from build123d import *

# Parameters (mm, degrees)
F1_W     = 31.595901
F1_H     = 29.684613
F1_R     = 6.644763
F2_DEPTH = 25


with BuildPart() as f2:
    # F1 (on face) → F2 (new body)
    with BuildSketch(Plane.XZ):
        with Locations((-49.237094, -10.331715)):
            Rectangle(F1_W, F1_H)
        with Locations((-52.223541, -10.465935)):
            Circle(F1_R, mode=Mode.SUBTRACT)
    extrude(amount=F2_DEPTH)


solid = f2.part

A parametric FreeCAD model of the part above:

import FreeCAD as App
import Part
import Sketcher

V = App.Vector

doc = App.newDocument("Part")
body = doc.addObject("PartDesign::Body", "Body")

# Sketch on XZ plane
sketch1 = doc.addObject("Sketcher::SketchObject", "Sketch")
body.addObject(sketch1)
sketch1.AttachmentSupport = (doc.XZ_Plane, [""])
sketch1.MapMode = "FlatFace"
sketch1.addGeometry(Part.LineSegment(V(-65.035044, 4.510592, 0), V(-65.035044, -25.174021, 0)), False)
sketch1.addGeometry(Part.LineSegment(V(-65.035044, -25.174021, 0), V(-33.439144, -25.174021, 0)), False)
sketch1.addGeometry(Part.LineSegment(V(-33.439144, -25.174021, 0), V(-33.439144, 4.510592, 0)), False)
sketch1.addGeometry(Part.LineSegment(V(-33.439144, 4.510592, 0), V(-65.035044, 4.510592, 0)), False)
sketch1.addGeometry(Part.Circle(V(-52.223541, -10.465935, 0), V(0, 0, 1), 6.644763), False)
sketch1.addConstraint(Sketcher.Constraint("Coincident", 0, 2, 1, 1))
sketch1.addConstraint(Sketcher.Constraint("Coincident", 1, 2, 2, 1))
sketch1.addConstraint(Sketcher.Constraint("Coincident", 2, 2, 3, 1))
sketch1.addConstraint(Sketcher.Constraint("Coincident", 3, 2, 0, 1))
sketch1.addConstraint(Sketcher.Constraint("Vertical", 0))
sketch1.addConstraint(Sketcher.Constraint("Horizontal", 1))
sketch1.addConstraint(Sketcher.Constraint("Vertical", 2))
sketch1.addConstraint(Sketcher.Constraint("Horizontal", 3))
sketch1.addConstraint(Sketcher.Constraint("Diameter", 4, 13.289526))
sketch1.addConstraint(Sketcher.Constraint("DistanceX", 1, 1, 1, 2, 31.595901))
sketch1.addConstraint(Sketcher.Constraint("DistanceY", 0, 2, 0, 1, 29.684613))
sketch1.addConstraint(Sketcher.Constraint("DistanceX", 4, 3, -1, 1, 52.223541))
sketch1.addConstraint(Sketcher.Constraint("DistanceY", 0, 2, -1, 1, 25.174021))
sketch1.addConstraint(Sketcher.Constraint("DistanceY", 4, 3, -1, 1, 10.465935))
sketch1.addConstraint(Sketcher.Constraint("DistanceX", 0, 2, -1, 1, 65.035044))
pad1 = doc.addObject("PartDesign::Pad", "Pad")
body.addObject(pad1)
pad1.Profile = sketch1
pad1.Length = 25

doc.recompute()
